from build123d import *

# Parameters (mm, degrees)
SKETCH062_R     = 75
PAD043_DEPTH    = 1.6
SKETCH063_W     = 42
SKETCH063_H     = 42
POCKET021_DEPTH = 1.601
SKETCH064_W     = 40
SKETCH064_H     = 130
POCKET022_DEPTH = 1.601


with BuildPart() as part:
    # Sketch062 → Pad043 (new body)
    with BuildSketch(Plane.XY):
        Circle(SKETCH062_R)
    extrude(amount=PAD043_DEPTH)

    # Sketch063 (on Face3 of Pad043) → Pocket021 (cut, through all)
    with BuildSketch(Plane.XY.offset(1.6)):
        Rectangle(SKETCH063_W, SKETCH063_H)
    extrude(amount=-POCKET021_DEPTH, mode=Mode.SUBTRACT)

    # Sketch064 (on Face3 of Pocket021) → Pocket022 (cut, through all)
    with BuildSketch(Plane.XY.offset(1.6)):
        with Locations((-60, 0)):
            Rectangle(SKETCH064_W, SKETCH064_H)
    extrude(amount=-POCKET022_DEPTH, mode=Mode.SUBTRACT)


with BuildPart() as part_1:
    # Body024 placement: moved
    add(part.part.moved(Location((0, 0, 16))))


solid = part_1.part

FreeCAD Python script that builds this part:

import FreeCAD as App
import Part
import Sketcher

V = App.Vector
Q = App.Units.Quantity


def add_polygon(sketch, points):
    """Adds a closed chain of lines whose ends are joined by coincident constraints."""
    first, n = sketch.GeometryCount, len(points)
    for a, b in zip(points, points[1:] + points[:1]):
        sketch.addGeometry(Part.LineSegment(App.Vector(*a, 0), App.Vector(*b, 0)), False)
    for i in range(n):
        sketch.addConstraint(Sketcher.Constraint("Coincident", first + i, 2, first + (i + 1) % n, 1))

doc = App.newDocument("Part")
body = doc.addObject("PartDesign::Body", "Body")

sketch1 = doc.addObject("Sketcher::SketchObject", "Sketch")
body.addObject(sketch1)
sketch1.AttachmentSupport = (doc.XY_Plane, [""])
sketch1.MapMode = "FlatFace"
sketch1.addGeometry(Part.Circle(V(0, 0, 0), V(0, 0, 1), 75), False)
sketch1.addConstraint([
    Sketcher.Constraint("Coincident", 0, 3, -1, 1),
    Sketcher.Constraint("Diameter", 0, Q("150 mm")),
])
pad1 = doc.addObject("PartDesign::Pad", "Pad")
body.addObject(pad1)
pad1.Profile = sketch1
pad1.Length = 1.6

sketch2 = doc.addObject("Sketcher::SketchObject", "Sketch001")
body.addObject(sketch2)
sketch2.AttachmentSupport = (doc.XY_Plane, [""])
sketch2.MapMode = "FlatFace"
sketch2.AttachmentOffset = App.Placement(V(0, 0, 1.6), App.Rotation())
add_polygon(sketch2, [(-21, 21), (-21, -21), (21, -21), (21, 21)])
sketch2.addConstraint([
    Sketcher.Constraint("Vertical", 0),
    Sketcher.Constraint("Horizontal", 1),
    Sketcher.Constraint("Vertical", 2),
    Sketcher.Constraint("Horizontal", 3),
    Sketcher.Constraint("Symmetric", 0, 2, 2, 2, -1, 1),
    Sketcher.Constraint("Equal", 3, 0),
    Sketcher.Constraint("DistanceX", 1, 1, 1, 2, Q("42 mm")),
])
pocket1 = doc.addObject("PartDesign::Pocket", "Pocket")
body.addObject(pocket1)
pocket1.Profile = sketch2
pocket1.Type = "ThroughAll"

sketch3 = doc.addObject("Sketcher::SketchObject", "Sketch002")
body.addObject(sketch3)
sketch3.AttachmentSupport = (doc.XY_Plane, [""])
sketch3.MapMode = "FlatFace"
sketch3.AttachmentOffset = App.Placement(V(0, 0, 1.6), App.Rotation())
add_polygon(sketch3, [(-80, 65), (-80, -65), (-40, -65), (-40, 65)])
sketch3.addConstraint([
    Sketcher.Constraint("Vertical", 0),
    Sketcher.Constraint("Horizontal", 1),
    Sketcher.Constraint("Vertical", 2),
    Sketcher.Constraint("Horizontal", 3),
    Sketcher.Constraint("DistanceX", 1, 1, 1, 2, Q("40 mm")),
    Sketcher.Constraint("DistanceY", 0, 2, 0, 1, Q("130 mm")),
    Sketcher.Constraint("DistanceX", 0, 2, -1, 1, Q("80 mm")),
    Sketcher.Constraint("DistanceY", 0, 2, -1, 1, Q("65 mm")),
])
pocket2 = doc.addObject("PartDesign::Pocket", "Pocket001")
body.addObject(pocket2)
pocket2.Profile = sketch3
pocket2.Type = "ThroughAll"
body2 = doc.addObject("PartDesign::Body", "Body001")
doc.recompute()

body.Placement = App.Placement(V(0, 0, 16), App.Rotation(V(0, 0, 1), 0))
boolean = doc.addObject("PartDesign::Boolean", "Boolean")
body2.addObject(boolean)
boolean.Type = "Fuse"
boolean.addObjects([body])

doc.recompute()
